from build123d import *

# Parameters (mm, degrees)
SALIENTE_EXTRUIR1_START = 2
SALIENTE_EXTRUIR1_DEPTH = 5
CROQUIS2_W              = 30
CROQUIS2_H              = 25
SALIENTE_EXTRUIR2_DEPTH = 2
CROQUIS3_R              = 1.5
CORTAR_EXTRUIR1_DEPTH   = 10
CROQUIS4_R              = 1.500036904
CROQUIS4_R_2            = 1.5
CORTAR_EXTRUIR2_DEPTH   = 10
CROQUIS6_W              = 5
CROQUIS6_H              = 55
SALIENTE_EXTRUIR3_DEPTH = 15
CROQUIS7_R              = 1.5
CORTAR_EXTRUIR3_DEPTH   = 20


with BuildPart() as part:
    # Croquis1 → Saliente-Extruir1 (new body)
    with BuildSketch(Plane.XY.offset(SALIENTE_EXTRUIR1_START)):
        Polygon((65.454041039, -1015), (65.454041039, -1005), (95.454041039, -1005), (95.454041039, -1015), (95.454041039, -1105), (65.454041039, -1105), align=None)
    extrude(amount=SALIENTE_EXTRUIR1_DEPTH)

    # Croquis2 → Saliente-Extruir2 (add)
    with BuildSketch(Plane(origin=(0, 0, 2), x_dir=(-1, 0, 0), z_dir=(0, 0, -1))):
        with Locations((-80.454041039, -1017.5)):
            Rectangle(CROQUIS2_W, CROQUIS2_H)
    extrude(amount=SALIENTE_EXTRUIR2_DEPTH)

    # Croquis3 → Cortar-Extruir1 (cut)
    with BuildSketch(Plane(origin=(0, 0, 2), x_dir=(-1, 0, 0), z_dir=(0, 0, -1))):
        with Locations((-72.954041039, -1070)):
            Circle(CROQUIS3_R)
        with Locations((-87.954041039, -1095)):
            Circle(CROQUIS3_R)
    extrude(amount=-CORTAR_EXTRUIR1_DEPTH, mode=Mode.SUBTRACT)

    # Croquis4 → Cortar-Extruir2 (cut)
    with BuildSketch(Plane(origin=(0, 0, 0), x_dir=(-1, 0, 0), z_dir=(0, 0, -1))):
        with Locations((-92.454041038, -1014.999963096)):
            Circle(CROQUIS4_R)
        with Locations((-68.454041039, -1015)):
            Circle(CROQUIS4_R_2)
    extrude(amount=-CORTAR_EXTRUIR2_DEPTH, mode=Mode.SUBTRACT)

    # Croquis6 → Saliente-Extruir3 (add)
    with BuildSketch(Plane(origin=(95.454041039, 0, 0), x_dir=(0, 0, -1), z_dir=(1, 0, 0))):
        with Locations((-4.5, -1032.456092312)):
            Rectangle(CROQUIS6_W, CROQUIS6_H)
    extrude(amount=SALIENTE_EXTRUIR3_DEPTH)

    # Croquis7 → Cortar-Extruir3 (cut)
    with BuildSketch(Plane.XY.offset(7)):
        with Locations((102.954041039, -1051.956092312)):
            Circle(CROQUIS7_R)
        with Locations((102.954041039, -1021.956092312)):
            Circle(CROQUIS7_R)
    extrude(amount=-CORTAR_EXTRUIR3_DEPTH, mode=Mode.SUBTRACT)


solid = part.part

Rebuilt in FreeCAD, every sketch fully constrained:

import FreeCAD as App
import Part
import Sketcher

V = App.Vector
Q = App.Units.Quantity


def add_polygon(sketch, points):
    """Adds a closed chain of lines whose ends are joined by coincident constraints."""
    first, n = sketch.GeometryCount, len(points)
    for a, b in zip(points, points[1:] + points[:1]):
        sketch.addGeometry(Part.LineSegment(App.Vector(*a, 0), App.Vector(*b, 0)), False)
    for i in range(n):
        sketch.addConstraint(Sketcher.Constraint("Coincident", first + i, 2, first + (i + 1) % n, 1))

doc = App.newDocument("Part")
params = doc.addObject("Spreadsheet::Sheet", "Params")
for row, (alias, value) in enumerate([
    ("sketch1_width", "30 mm"),
    ("sketch1_height", "100 mm"),
    ("pad1_length", "5 mm"),
    ("sketch2_width", "30 mm"),
    ("sketch2_height", "25 mm"),
    ("pad2_length", "2 mm"),
    ("sketch3_diameter", "3 mm"),
    ("pocket1_length", "10 mm"),
    ("sketch4_diameter", "3 mm"),
    ("pocket2_length", "10 mm"),
    ("sketch5_width", "55 mm"),
    ("sketch5_height", "5 mm"),
    ("pad3_length", "15 mm"),
    ("sketch6_diameter", "3 mm"),
    ("pocket3_length", "20 mm"),
], start=1):
    params.set(f"A{row}", alias)
    params.set(f"B{row}", "=" + value)
    params.setAlias(f"B{row}", alias)

body = doc.addObject("PartDesign::Body", "Body")

sketch1 = body.newObject("Sketcher::SketchObject", "Sketch")
sketch1.AttachmentSupport = (doc.getObject("XY_Plane"), [""])
sketch1.MapMode = "FlatFace"
sketch1.AttachmentOffset = App.Placement(V(0, 0, 2), App.Rotation())
add_polygon(sketch1, [(65, -1005), (65, -1105), (95, -1105), (95, -1005)])
sketch1.addConstraint(Sketcher.Constraint("Vertical", 0))
sketch1.addConstraint(Sketcher.Constraint("Horizontal", 1))
sketch1.addConstraint(Sketcher.Constraint("Vertical", 2))
sketch1.addConstraint(Sketcher.Constraint("Horizontal", 3))
sketch1.addConstraint(Sketcher.Constraint("DistanceX", 1, 1, 1, 2, Q("30 mm")))
sketch1.addConstraint(Sketcher.Constraint("DistanceY", 0, 2, 0, 1, Q("100 mm")))
sketch1.addConstraint(Sketcher.Constraint("DistanceY", 0, 2, -1, 1, Q("1105 mm")))
sketch1.addConstraint(Sketcher.Constraint("DistanceX", -1, 1, 0, 2, Q("65.454041 mm")))
sketch1.setExpression("Constraints[8]", "Params.sketch1_width")
sketch1.setExpression("Constraints[9]", "Params.sketch1_height")
pad1 = body.newObject("PartDesign::Pad", "Pad")
pad1.Profile = sketch1
pad1.setExpression("Length", "Params.pad1_length")

sketch2 = body.newObject("Sketcher::SketchObject", "Sketch001")
sketch2.AttachmentSupport = (doc.getObject("XY_Plane"), [""])
sketch2.MapMode = "FlatFace"
sketch2.AttachmentOffset = App.Placement(V(0, 0, 2), App.Rotation())
add_polygon(sketch2, [(95, -1005), (95, -1030), (65, -1030), (65, -1005)])
sketch2.addConstraint(Sketcher.Constraint("Vertical", 0))
sketch2.addConstraint(Sketcher.Constraint("Horizontal", 1))
sketch2.addConstraint(Sketcher.Constraint("Vertical", 2))
sketch2.addConstraint(Sketcher.Constraint("Horizontal", 3))
sketch2.addConstraint(Sketcher.Constraint("DistanceX", 1, 2, 1, 1, Q("30 mm")))
sketch2.addConstraint(Sketcher.Constraint("DistanceY", 0, 2, 0, 1, Q("25 mm")))
sketch2.addConstraint(Sketcher.Constraint("DistanceY", 0, 2, -1, 1, Q("1030 mm")))
sketch2.addConstraint(Sketcher.Constraint("DistanceX", -1, 1, 0, 2, Q("95.454041 mm")))
sketch2.setExpression("Constraints[8]", "Params.sketch2_width")
sketch2.setExpression("Constraints[9]", "Params.sketch2_height")
pad2 = body.newObject("PartDesign::Pad", "Pad001")
pad2.Profile = sketch2
pad2.setExpression("Length", "Params.pad2_length")
pad2.Reversed = True

sketch3 = body.newObject("Sketcher::SketchObject", "Sketch002")
sketch3.AttachmentSupport = (doc.getObject("XY_Plane"), [""])
sketch3.MapMode = "FlatFace"
sketch3.AttachmentOffset = App.Placement(V(0, 0, 2), App.Rotation())
sketch3.addGeometry(Part.Circle(V(73, -1070, 0), V(0, 0, 1), 1.5), False)
sketch3.addGeometry(Part.Circle(V(88, -1095, 0), V(0, 0, 1), 1.5), False)
sketch3.addConstraint(Sketcher.Constraint("Equal", 0, 1))
sketch3.addConstraint(Sketcher.Constraint("Diameter", 0, Q("3 mm")))
sketch3.addConstraint(Sketcher.Constraint("DistanceY", 0, 3, -1, 1, Q("1070 mm")))
sketch3.addConstraint(Sketcher.Constraint("DistanceY", 1, 3, -1, 1, Q("1095 mm")))
sketch3.addConstraint(Sketcher.Constraint("DistanceX", 0, 3, 1, 3, Q("15 mm")))
sketch3.addConstraint(Sketcher.Constraint("DistanceX", -1, 1, 0, 3, Q("72.954041 mm")))
sketch3.setExpression("Constraints[1]", "Params.sketch3_diameter")
pocket1 = body.newObject("PartDesign::Pocket", "Pocket")
pocket1.Profile = sketch3
pocket1.setExpression("Length", "Params.pocket1_length")
pocket1.Reversed = True

sketch4 = body.newObject("Sketcher::SketchObject", "Sketch003")
sketch4.AttachmentSupport = (doc.getObject("XY_Plane"), [""])
sketch4.MapMode = "FlatFace"
sketch4.addGeometry(Part.Circle(V(92.454041, -1014.999963, 0), V(0, 0, 1), 1.500037), False)
sketch4.addGeometry(Part.Circle(V(68.454041, -1015, 0), V(0, 0, 1), 1.5), False)
sketch4.addConstraint(Sketcher.Constraint("Diameter", 1, Q("3 mm")))
sketch4.addConstraint(Sketcher.Constraint("DistanceY", 1, 3, -1, 1, Q("1015 mm")))
sketch4.addConstraint(Sketcher.Constraint("DistanceX", 1, 3, 0, 3, Q("24 mm")))
sketch4.addConstraint(Sketcher.Constraint("Diameter", 0, Q("3.000074 mm")))
sketch4.addConstraint(Sketcher.Constraint("DistanceX", -1, 1, 0, 3, Q("92.454041 mm")))
sketch4.addConstraint(Sketcher.Constraint("DistanceY", 0, 3, -1, 1, Q("1014.999963 mm")))
sketch4.setExpression("Constraints[0]", "Params.sketch4_diameter")
pocket2 = body.newObject("PartDesign::Pocket", "Pocket001")
pocket2.Profile = sketch4
pocket2.setExpression("Length", "Params.pocket2_length")
pocket2.Reversed = True

sketch5 = body.newObject("Sketcher::SketchObject", "Sketch004")
sketch5.AttachmentSupport = (doc.getObject("YZ_Plane"), [""])
sketch5.MapMode = "FlatFace"
sketch5.AttachmentOffset = App.Placement(V(0, 0, 95.454041), App.Rotation())
add_polygon(sketch5, [(-1005, 7), (-1060, 7), (-1060, 2), (-1005, 2)])
sketch5.addConstraint(Sketcher.Constraint("Horizontal", 0))
sketch5.addConstraint(Sketcher.Constraint("Vertical", 1))
sketch5.addConstraint(Sketcher.Constraint("Horizontal", 2))
sketch5.addConstraint(Sketcher.Constraint("Vertical", 3))
sketch5.addConstraint(Sketcher.Constraint("DistanceX", 0, 2, 0, 1, Q("55 mm")))
sketch5.addConstraint(Sketcher.Constraint("DistanceY", 1, 2, 1, 1, Q("5 mm")))
sketch5.addConstraint(Sketcher.Constraint("DistanceY", -1, 1, 0, 2, Q("7 mm")))
sketch5.addConstraint(Sketcher.Constraint("DistanceX", 0, 2, -1, 1, Q("1059.956092 mm")))
sketch5.setExpression("Constraints[8]", "Params.sketch5_width")
sketch5.setExpression("Constraints[9]", "Params.sketch5_height")
pad3 = body.newObject("PartDesign::Pad", "Pad002")
pad3.Profile = sketch5
pad3.setExpression("Length", "Params.pad3_length")

sketch6 = body.newObject("Sketcher::SketchObject", "Sketch005")
sketch6.AttachmentSupport = (doc.getObject("XY_Plane"), [""])
sketch6.MapMode = "FlatFace"
sketch6.AttachmentOffset = App.Placement(V(0, 0, 7), App.Rotation())
sketch6.addGeometry(Part.Circle(V(103, -1052, 0), V(0, 0, 1), 1.5), False)
sketch6.addGeometry(Part.Circle(V(103, -1022, 0), V(0, 0, 1), 1.5), False)
sketch6.addConstraint(Sketcher.Constraint("Equal", 0, 1))
sketch6.addConstraint(Sketcher.Constraint("Vertical", 0, 3, 1, 3))
sketch6.addConstraint(Sketcher.Constraint("Diameter", 0, Q("3 mm")))
sketch6.addConstraint(Sketcher.Constraint("DistanceY", 0, 3, 1, 3, Q("30 mm")))
sketch6.addConstraint(Sketcher.Constraint("DistanceX", -1, 1, 0, 3, Q("102.954041 mm")))
sketch6.addConstraint(Sketcher.Constraint("DistanceY", 0, 3, -1, 1, Q("1051.956092 mm")))
sketch6.setExpression("Constraints[2]", "Params.sketch6_diameter")
pocket3 = body.newObject("PartDesign::Pocket", "Pocket002")
pocket3.Profile = sketch6
pocket3.setExpression("Length", "Params.pocket3_length")

doc.recompute()
